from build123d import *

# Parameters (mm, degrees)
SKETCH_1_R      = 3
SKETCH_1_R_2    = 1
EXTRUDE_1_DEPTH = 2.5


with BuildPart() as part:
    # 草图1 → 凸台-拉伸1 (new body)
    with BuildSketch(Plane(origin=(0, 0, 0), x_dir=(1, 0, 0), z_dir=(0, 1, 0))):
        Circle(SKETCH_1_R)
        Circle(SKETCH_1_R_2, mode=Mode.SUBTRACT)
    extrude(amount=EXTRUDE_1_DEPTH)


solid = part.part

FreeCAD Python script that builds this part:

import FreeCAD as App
import Part
import Sketcher

V = App.Vector

doc = App.newDocument("Part")
params = doc.addObject("Spreadsheet::Sheet", "Params")
for row, (alias, value) in enumerate([
    ("sketch1_diameter", "6 mm"),
    ("sketch1_diameter2", "2 mm"),
    ("pad1_length", "2.5 mm"),
], start=1):
    params.set(f"A{row}", alias)
    params.set(f"B{row}", "=" + value)
    params.setAlias(f"B{row}", alias)

body = doc.addObject("PartDesign::Body", "Body")

sketch1 = body.newObject("Sketcher::SketchObject", "Sketch")
sketch1.AttachmentSupport = (doc.getObject("XZ_Plane"), [""])
sketch1.MapMode = "FlatFace"
sketch1.addGeometry([
    Part.Circle(V(0, 0, 0), V(0, 0, 1), 3),
    Part.Circle(V(0, 0, 0), V(0, 0, 1), 1),
], False)
sketch1.addConstraint([
    Sketcher.Constraint("Coincident", 0, 3, -1, 1),
    Sketcher.Constraint("Coincident", 1, 3, -1, 1),
    Sketcher.Constraint("Diameter", 0, 6.0),
    Sketcher.Constraint("Diameter", 1, 2.0),
])
sketch1.setExpression("Constraints[2]", "Params.sketch1_diameter")
sketch1.setExpression("Constraints[3]", "Params.sketch1_diameter2")
pad1 = body.newObject("PartDesign::Pad", "Pad")
pad1.Profile = sketch1
pad1.setExpression("Length", "Params.pad1_length")
pad1.Reversed = True

doc.recompute()
